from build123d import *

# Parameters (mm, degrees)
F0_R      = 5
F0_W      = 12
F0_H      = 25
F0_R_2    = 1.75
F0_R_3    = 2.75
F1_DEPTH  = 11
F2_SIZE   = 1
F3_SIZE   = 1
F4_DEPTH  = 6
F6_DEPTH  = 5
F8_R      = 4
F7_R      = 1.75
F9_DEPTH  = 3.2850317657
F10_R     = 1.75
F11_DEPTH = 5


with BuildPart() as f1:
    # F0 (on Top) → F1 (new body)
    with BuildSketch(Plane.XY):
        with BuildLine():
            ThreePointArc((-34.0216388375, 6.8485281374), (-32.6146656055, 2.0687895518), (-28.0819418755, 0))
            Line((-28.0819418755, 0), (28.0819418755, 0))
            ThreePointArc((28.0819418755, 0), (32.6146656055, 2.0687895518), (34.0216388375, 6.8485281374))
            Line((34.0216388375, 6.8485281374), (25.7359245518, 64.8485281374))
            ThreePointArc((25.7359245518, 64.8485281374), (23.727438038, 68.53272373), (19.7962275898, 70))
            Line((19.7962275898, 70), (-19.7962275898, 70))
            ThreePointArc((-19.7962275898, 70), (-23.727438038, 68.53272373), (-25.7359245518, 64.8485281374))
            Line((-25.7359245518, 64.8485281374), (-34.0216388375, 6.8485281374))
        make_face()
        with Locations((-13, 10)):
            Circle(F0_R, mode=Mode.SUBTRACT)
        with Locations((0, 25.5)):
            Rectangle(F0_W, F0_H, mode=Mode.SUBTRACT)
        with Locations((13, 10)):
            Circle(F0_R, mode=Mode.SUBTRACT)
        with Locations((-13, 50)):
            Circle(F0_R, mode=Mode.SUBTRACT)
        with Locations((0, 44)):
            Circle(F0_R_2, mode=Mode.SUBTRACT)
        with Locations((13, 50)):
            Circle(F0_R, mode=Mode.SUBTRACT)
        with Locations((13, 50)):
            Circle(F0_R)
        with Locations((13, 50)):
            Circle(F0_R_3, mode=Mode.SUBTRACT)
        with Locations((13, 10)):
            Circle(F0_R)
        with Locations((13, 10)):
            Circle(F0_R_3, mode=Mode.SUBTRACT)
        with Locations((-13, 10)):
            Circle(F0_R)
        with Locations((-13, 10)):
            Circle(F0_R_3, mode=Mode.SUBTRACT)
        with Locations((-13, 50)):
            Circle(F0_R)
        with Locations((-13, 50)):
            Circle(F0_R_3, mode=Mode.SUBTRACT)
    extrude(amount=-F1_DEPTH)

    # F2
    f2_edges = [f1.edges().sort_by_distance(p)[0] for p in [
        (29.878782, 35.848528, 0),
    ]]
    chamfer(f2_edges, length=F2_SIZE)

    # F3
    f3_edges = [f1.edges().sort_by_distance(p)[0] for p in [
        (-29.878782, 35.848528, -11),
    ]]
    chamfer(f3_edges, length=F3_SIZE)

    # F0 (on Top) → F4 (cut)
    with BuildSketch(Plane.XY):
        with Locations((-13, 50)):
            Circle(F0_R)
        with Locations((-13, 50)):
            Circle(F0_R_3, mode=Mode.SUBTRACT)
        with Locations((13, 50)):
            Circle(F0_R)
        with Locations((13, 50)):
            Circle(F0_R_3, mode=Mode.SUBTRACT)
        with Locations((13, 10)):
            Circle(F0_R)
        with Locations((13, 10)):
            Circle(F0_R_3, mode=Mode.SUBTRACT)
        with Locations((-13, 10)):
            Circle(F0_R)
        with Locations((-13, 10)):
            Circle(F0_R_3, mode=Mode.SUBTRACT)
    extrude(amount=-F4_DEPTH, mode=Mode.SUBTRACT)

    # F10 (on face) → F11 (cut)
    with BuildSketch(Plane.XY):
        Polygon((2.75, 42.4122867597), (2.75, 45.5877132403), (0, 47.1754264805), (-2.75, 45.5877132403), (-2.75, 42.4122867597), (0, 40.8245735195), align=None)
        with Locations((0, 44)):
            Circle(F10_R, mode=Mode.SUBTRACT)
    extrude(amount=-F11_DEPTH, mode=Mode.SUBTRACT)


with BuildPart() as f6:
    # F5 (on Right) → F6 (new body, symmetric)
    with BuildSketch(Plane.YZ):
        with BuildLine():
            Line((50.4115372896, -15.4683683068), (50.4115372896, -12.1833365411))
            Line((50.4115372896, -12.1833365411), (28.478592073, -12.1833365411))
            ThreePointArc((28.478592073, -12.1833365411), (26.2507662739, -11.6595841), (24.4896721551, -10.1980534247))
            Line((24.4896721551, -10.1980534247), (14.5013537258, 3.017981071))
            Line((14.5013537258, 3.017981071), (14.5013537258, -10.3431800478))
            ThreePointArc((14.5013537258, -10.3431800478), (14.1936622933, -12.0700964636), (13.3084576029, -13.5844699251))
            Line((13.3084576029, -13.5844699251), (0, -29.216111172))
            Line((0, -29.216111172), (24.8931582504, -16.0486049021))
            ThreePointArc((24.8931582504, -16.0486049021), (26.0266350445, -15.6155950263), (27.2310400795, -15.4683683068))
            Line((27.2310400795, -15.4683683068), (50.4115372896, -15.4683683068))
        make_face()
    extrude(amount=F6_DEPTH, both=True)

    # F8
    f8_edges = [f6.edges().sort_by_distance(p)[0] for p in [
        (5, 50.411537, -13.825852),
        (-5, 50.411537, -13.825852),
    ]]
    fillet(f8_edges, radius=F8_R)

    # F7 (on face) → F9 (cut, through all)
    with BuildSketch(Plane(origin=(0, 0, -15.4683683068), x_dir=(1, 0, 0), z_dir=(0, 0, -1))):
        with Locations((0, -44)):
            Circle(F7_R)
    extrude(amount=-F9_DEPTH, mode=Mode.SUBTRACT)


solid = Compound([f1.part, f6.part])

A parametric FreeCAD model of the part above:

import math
import FreeCAD as App
import Part
import Sketcher
Q = App.Units.Quantity


def edges_at(feature, points):
    """Names of the edges that pass closest to the given points."""
    edges = feature.Shape.Edges
    near = lambda p: min(range(len(edges)), key=lambda i: edges[i].distToShape(Part.Vertex(*p))[0])
    return sorted({f"Edge{near(p) + 1}" for p in points})


def add_polygon(sketch, points):
    """Adds a closed chain of lines whose ends are joined by coincident constraints."""
    first, n = sketch.GeometryCount, len(points)
    for a, b in zip(points, points[1:] + points[:1]):
        sketch.addGeometry(Part.LineSegment(App.Vector(*a, 0), App.Vector(*b, 0)), False)
    for i in range(n):
        sketch.addConstraint(Sketcher.Constraint("Coincident", first + i, 2, first + (i + 1) % n, 1))

doc = App.newDocument("Part")
body = doc.addObject("PartDesign::Body", "Body")

# Sketch on XY plane
sketch1 = doc.addObject("Sketcher::SketchObject", "Sketch")
body.addObject(sketch1)
sketch1.AttachmentSupport = (doc.XY_Plane, [""])
sketch1.MapMode = "FlatFace"
sketch1.addGeometry(Part.ArcOfCircle(Part.Circle(App.Vector(-28.1, 6, 0), App.Vector(0, 0, 1), 6), math.radians(172), math.radians(270)), False)  # 0
sketch1.addGeometry(Part.LineSegment(App.Vector(-28.1, 0, 0), App.Vector(28.1, 0, 0)), False)  # 1
sketch1.addGeometry(Part.ArcOfCircle(Part.Circle(App.Vector(28.1, 6, 0), App.Vector(0, 0, 1), 6), math.radians(-90), math.radians(8)), False)  # 2
sketch1.addGeometry(Part.LineSegment(App.Vector(34, 6.8, 0), App.Vector(25.7, 64.8, 0)), False)  # 3
sketch1.addGeometry(Part.ArcOfCircle(Part.Circle(App.Vector(19.8, 64, 0), App.Vector(0, 0, 1), 6), math.radians(8), math.radians(90)), False)  # 4
sketch1.addGeometry(Part.LineSegment(App.Vector(19.8, 70, 0), App.Vector(-19.8, 70, 0)), False)  # 5
sketch1.addGeometry(Part.ArcOfCircle(Part.Circle(App.Vector(-19.8, 64, 0), App.Vector(0, 0, 1), 6), math.radians(90), math.radians(172)), False)  # 6
sketch1.addGeometry(Part.LineSegment(App.Vector(-25.7, 64.8, 0), App.Vector(-34, 6.8, 0)), False)  # 7
sketch1.addGeometry(Part.Circle(App.Vector(-13, 10, 0), App.Vector(0, 0, 1), 2.8), False)  # 8
sketch1.addGeometry(Part.Circle(App.Vector(13, 10, 0), App.Vector(0, 0, 1), 2.8), False)  # 9
add_polygon(sketch1, [(6, 13), (-6, 13), (-6, 38), (6, 38)])  # lines 10-13
sketch1.addGeometry(Part.Circle(App.Vector(-13, 50, 0), App.Vector(0, 0, 1), 2.8), False)  # 14
sketch1.addGeometry(Part.Circle(App.Vector(0, 44, 0), App.Vector(0, 0, 1), 1.8), False)  # 15
sketch1.addGeometry(Part.Circle(App.Vector(13, 50, 0), App.Vector(0, 0, 1), 2.8), False)  # 16
sketch1.addConstraint([
    Sketcher.Constraint("Tangent", 0, 2, 1, 1),
    Sketcher.Constraint("Tangent", 1, 2, 2, 1),
    Sketcher.Constraint("Tangent", 2, 2, 3, 1),
    Sketcher.Constraint("Tangent", 3, 2, 4, 1),
    Sketcher.Constraint("Tangent", 4, 2, 5, 1),
    Sketcher.Constraint("Tangent", 5, 2, 6, 1),
    Sketcher.Constraint("Tangent", 6, 2, 7, 1),
    Sketcher.Constraint("Tangent", 7, 2, 0, 1),
    Sketcher.Constraint("Horizontal", 1),
    Sketcher.Constraint("Horizontal", 5),
    Sketcher.Constraint("Horizontal", 10),
    Sketcher.Constraint("Vertical", 11),
    Sketcher.Constraint("Horizontal", 12),
    Sketcher.Constraint("Vertical", 13),
    Sketcher.Constraint("Equal", 0, 2),
    Sketcher.Constraint("Equal", 2, 4),
    Sketcher.Constraint("Equal", 4, 6),
    Sketcher.Constraint("Equal", 8, 9),
    Sketcher.Constraint("Equal", 9, 14),
    Sketcher.Constraint("Equal", 14, 16),
    Sketcher.Constraint("Symmetric", 0, 2, 1, 2, -1, 1),
    Sketcher.Constraint("Symmetric", 8, 3, 9, 3, -2),
    Sketcher.Constraint("Symmetric", 14, 3, 16, 3, -2),
    Sketcher.Constraint("PointOnObject", 15, 3, -2),
    Sketcher.Constraint("Horizontal", 3, 2, 6, 2),
    Sketcher.Constraint("Vertical", 8, 3, 14, 3),
    Sketcher.Constraint("Radius", 0, Q("6 mm")),
    Sketcher.Constraint("Diameter", 8, Q("5.5 mm")),
    Sketcher.Constraint("Diameter", 15, Q("3.5 mm")),
    Sketcher.Constraint("DistanceX", 10, 2, 10, 1, Q("12 mm")),
    Sketcher.Constraint("DistanceY", 11, 1, 11, 2, Q("25 mm")),
    Sketcher.Constraint("DistanceY", -1, 1, 4, 3, Q("64 mm")),
    Sketcher.Constraint("DistanceX", 8, 3, -1, 1, Q("13 mm")),
    Sketcher.Constraint("DistanceY", -1, 1, 8, 3, Q("10 mm")),
    Sketcher.Constraint("DistanceY", -1, 1, 14, 3, Q("50 mm")),
    Sketcher.Constraint("DistanceY", -1, 1, 15, 3, Q("44 mm")),
    Sketcher.Constraint("DistanceX", 10, 2, -1, 1, Q("6 mm")),
    Sketcher.Constraint("DistanceY", -1, 1, 10, 2, Q("13 mm")),
    Sketcher.Constraint("DistanceX", 1, 1, 1, 2, Q("56.163884 mm")),
    Sketcher.Constraint("DistanceX", 5, 2, 5, 1, Q("39.592455 mm")),
])
pad1 = doc.addObject("PartDesign::Pad", "Pad")
body.addObject(pad1)
pad1.Profile = sketch1
pad1.Length = 11
pad1.Reversed = True
doc.recompute()

chamfer = doc.addObject("PartDesign::Chamfer", "Chamfer")
body.addObject(chamfer)
chamfer.Base = (pad1, edges_at(pad1, [(29.879, 35.849, 0)]))
chamfer.Size = 1
doc.recompute()

chamfer2 = doc.addObject("PartDesign::Chamfer", "Chamfer001")
body.addObject(chamfer2)
chamfer2.Base = (chamfer, edges_at(chamfer, [(-29.879, 35.849, -11)]))
chamfer2.Size = 1

# Sketch on XY plane
sketch2 = doc.addObject("Sketcher::SketchObject", "Sketch001")
body.addObject(sketch2)
sketch2.AttachmentSupport = (doc.XY_Plane, [""])
sketch2.MapMode = "FlatFace"
sketch2.addGeometry([
    Part.Circle(App.Vector(-13, 50, 0), App.Vector(0, 0, 1), 5),  # 0
    Part.Circle(App.Vector(-13, 50, 0), App.Vector(0, 0, 1), 2.8),  # 1
    Part.Circle(App.Vector(13, 50, 0), App.Vector(0, 0, 1), 5),  # 2
    Part.Circle(App.Vector(13, 50, 0), App.Vector(0, 0, 1), 2.8),  # 3
    Part.Circle(App.Vector(13, 10, 0), App.Vector(0, 0, 1), 5),  # 4
    Part.Circle(App.Vector(13, 10, 0), App.Vector(0, 0, 1), 2.8),  # 5
    Part.Circle(App.Vector(-13, 10, 0), App.Vector(0, 0, 1), 5),  # 6
    Part.Circle(App.Vector(-13, 10, 0), App.Vector(0, 0, 1), 2.8),  # 7
], False)
sketch2.addConstraint([
    Sketcher.Constraint("Coincident", 1, 3, 0, 3),
    Sketcher.Constraint("Coincident", 3, 3, 2, 3),
    Sketcher.Constraint("Coincident", 5, 3, 4, 3),
    Sketcher.Constraint("Coincident", 7, 3, 6, 3),
    Sketcher.Constraint("Equal", 0, 2),
    Sketcher.Constraint("Equal", 1, 3),
    Sketcher.Constraint("Equal", 2, 4),
    Sketcher.Constraint("Equal", 3, 5),
    Sketcher.Constraint("Equal", 4, 6),
    Sketcher.Constraint("Equal", 5, 7),
    Sketcher.Constraint("Symmetric", 0, 3, 2, 3, -2),
    Sketcher.Constraint("Symmetric", 4, 3, 6, 3, -2),
    Sketcher.Constraint("Vertical", 3, 3, 4, 3),
    Sketcher.Constraint("Diameter", 0, Q("10 mm")),
    Sketcher.Constraint("Diameter", 1, Q("5.5 mm")),
    Sketcher.Constraint("DistanceX", 0, 3, -1, 1, Q("13 mm")),
    Sketcher.Constraint("DistanceY", -1, 1, 0, 3, Q("50 mm")),
    Sketcher.Constraint("DistanceY", -1, 1, 4, 3, Q("10 mm")),
])
pocket1 = doc.addObject("PartDesign::Pocket", "Pocket")
body.addObject(pocket1)
pocket1.Profile = sketch2
pocket1.Length = 6

# Sketch on XY plane
sketch3 = doc.addObject("Sketcher::SketchObject", "Sketch002")
body.addObject(sketch3)
sketch3.AttachmentSupport = (doc.XY_Plane, [""])
sketch3.MapMode = "FlatFace"
add_polygon(sketch3, [(2.8, 42.4), (2.8, 45.6), (0, 47.2), (-2.8, 45.6), (-2.8, 42.4), (0, 40.8)])  # lines 0-5
sketch3.addGeometry(Part.Circle(App.Vector(0, 44, 0), App.Vector(0, 0, 1), 1.8), False)  # 6
sketch3.addConstraint([
    Sketcher.Constraint("Vertical", 0),
    Sketcher.Constraint("Vertical", 3),
    Sketcher.Constraint("Symmetric", 0, 2, 2, 2, -2),
    Sketcher.Constraint("PointOnObject", 6, 3, -2),
    Sketcher.Constraint("PointOnObject", 1, 2, -2),
    Sketcher.Constraint("PointOnObject", 4, 2, -2),
    Sketcher.Constraint("Parallel", 1, 4),
    Sketcher.Constraint("Parallel", 2, 5),
    Sketcher.Constraint("Diameter", 6, Q("3.5 mm")),
    Sketcher.Constraint("Angle", 1, Q("150 deg")),
    Sketcher.Constraint("DistanceY", -1, 1, 6, 3, Q("44 mm")),
    Sketcher.Constraint("DistanceX", 2, 2, 0, 2, Q("5.5 mm")),
    Sketcher.Constraint("DistanceY", 0, 1, 0, 2, Q("3.175426 mm")),
    Sketcher.Constraint("DistanceY", -1, 1, 0, 2, Q("45.587713 mm")),
])
pocket2 = doc.addObject("PartDesign::Pocket", "Pocket001")
body.addObject(pocket2)
pocket2.Profile = sketch3
pocket2.Length = 5
body2 = doc.addObject("PartDesign::Body", "Body001")

# Sketch on YZ plane
sketch4 = doc.addObject("Sketcher::SketchObject", "Sketch003")
body2.addObject(sketch4)
sketch4.AttachmentSupport = (doc.getObject("YZ_Plane001"), [""])
sketch4.MapMode = "FlatFace"
sketch4.addGeometry([
    Part.LineSegment(App.Vector(50.4, -15.5, 0), App.Vector(50.4, -12.2, 0)),  # 0
    Part.LineSegment(App.Vector(50.4, -12.2, 0), App.Vector(28.5, -12.2, 0)),  # 1
    Part.ArcOfCircle(Part.Circle(App.Vector(28.5, -7.2, 0), App.Vector(0, 0, 1), 5), math.radians(-143), math.radians(-90)),  # 2
    Part.LineSegment(App.Vector(24.5, -10.2, 0), App.Vector(14.5, 3, 0)),  # 3
    Part.LineSegment(App.Vector(14.5, 3, 0), App.Vector(14.5, -10.3, 0)),  # 4
    Part.ArcOfCircle(Part.Circle(App.Vector(9.5, -10.3, 0), App.Vector(0, 0, 1), 5), math.radians(-40), math.radians(0)),  # 5
    Part.LineSegment(App.Vector(13.3, -13.6, 0), App.Vector(0, -29.2, 0)),  # 6
    Part.LineSegment(App.Vector(0, -29.2, 0), App.Vector(24.9, -16, 0)),  # 7
    Part.ArcOfCircle(Part.Circle(App.Vector(27.2, -20.5, 0), App.Vector(0, 0, 1), 5), math.radians(90), math.radians(118)),  # 8
    Part.LineSegment(App.Vector(27.2, -15.5, 0), App.Vector(50.4, -15.5, 0)),  # 9
], False)
sketch4.addConstraint([
    Sketcher.Constraint("Coincident", 0, 2, 1, 1),
    Sketcher.Constraint("Tangent", 1, 2, 2, 2),
    Sketcher.Constraint("Tangent", 2, 1, 3, 1),
    Sketcher.Constraint("Coincident", 3, 2, 4, 1),
    Sketcher.Constraint("Tangent", 4, 2, 5, 2),
    Sketcher.Constraint("Tangent", 5, 1, 6, 1),
    Sketcher.Constraint("Coincident", 6, 2, 7, 1),
    Sketcher.Constraint("Tangent", 7, 2, 8, 2),
    Sketcher.Constraint("Tangent", 8, 1, 9, 1),
    Sketcher.Constraint("Coincident", 9, 2, 0, 1),
    Sketcher.Constraint("Vertical", 0),
    Sketcher.Constraint("Horizontal", 1),
    Sketcher.Constraint("Vertical", 4),
    Sketcher.Constraint("Horizontal", 9),
    Sketcher.Constraint("Equal", 2, 5),
    Sketcher.Constraint("Equal", 5, 8),
    Sketcher.Constraint("PointOnObject", 6, 2, -2),
    Sketcher.Constraint("Radius", 2, Q("5 mm")),
    Sketcher.Constraint("DistanceY", 0, 1, 0, 2, Q("3.285032 mm")),
    Sketcher.Constraint("DistanceY", 4, 2, 4, 1, Q("13.361161 mm")),
    Sketcher.Constraint("DistanceY", 8, 3, 5, 1, Q("6.883898 mm")),
    Sketcher.Constraint("DistanceX", 5, 1, 7, 2, Q("11.584701 mm")),
    Sketcher.Constraint("Distance", 3, Q("16.565931 mm")),
    Sketcher.Constraint("Distance", 6, Q("20.52957 mm")),
    Sketcher.Constraint("Distance", 7, Q("28.161189 mm")),
    Sketcher.Constraint("DistanceX", 1, 2, 1, 1, Q("21.932945 mm")),
    Sketcher.Constraint("DistanceY", 5, 3, -1, 1, Q("10.34318 mm")),
])
pad2 = doc.addObject("PartDesign::Pad", "Pad001")
body2.addObject(pad2)
pad2.Profile = sketch4
pad2.Length = 10
pad2.Midplane = True
doc.recompute()

fillet = doc.addObject("PartDesign::Fillet", "Fillet")
body2.addObject(fillet)
fillet.Base = (pad2, edges_at(pad2, [(5, 50.412, -13.826), (-5, 50.412, -13.826)]))
fillet.Radius = 4

# Sketch on XY plane
sketch5 = doc.addObject("Sketcher::SketchObject", "Sketch004")
body2.addObject(sketch5)
sketch5.AttachmentSupport = (doc.getObject("XY_Plane001"), [""])
sketch5.MapMode = "FlatFace"
sketch5.AttachmentOffset = App.Placement(App.Vector(0, 0, -15.468368), App.Rotation())
sketch5.addGeometry(Part.Circle(App.Vector(0, 44, 0), App.Vector(0, 0, 1), 1.8), False)
sketch5.addConstraint([
    Sketcher.Constraint("PointOnObject", 0, 3, -2),
    Sketcher.Constraint("Diameter", 0, Q("3.5 mm")),
    Sketcher.Constraint("DistanceY", -1, 1, 0, 3, Q("44 mm")),
])
pocket3 = doc.addObject("PartDesign::Pocket", "Pocket002")
body2.addObject(pocket3)
pocket3.Profile = sketch5
pocket3.Type = "ThroughAll"
pocket3.Reversed = True

doc.recompute()
